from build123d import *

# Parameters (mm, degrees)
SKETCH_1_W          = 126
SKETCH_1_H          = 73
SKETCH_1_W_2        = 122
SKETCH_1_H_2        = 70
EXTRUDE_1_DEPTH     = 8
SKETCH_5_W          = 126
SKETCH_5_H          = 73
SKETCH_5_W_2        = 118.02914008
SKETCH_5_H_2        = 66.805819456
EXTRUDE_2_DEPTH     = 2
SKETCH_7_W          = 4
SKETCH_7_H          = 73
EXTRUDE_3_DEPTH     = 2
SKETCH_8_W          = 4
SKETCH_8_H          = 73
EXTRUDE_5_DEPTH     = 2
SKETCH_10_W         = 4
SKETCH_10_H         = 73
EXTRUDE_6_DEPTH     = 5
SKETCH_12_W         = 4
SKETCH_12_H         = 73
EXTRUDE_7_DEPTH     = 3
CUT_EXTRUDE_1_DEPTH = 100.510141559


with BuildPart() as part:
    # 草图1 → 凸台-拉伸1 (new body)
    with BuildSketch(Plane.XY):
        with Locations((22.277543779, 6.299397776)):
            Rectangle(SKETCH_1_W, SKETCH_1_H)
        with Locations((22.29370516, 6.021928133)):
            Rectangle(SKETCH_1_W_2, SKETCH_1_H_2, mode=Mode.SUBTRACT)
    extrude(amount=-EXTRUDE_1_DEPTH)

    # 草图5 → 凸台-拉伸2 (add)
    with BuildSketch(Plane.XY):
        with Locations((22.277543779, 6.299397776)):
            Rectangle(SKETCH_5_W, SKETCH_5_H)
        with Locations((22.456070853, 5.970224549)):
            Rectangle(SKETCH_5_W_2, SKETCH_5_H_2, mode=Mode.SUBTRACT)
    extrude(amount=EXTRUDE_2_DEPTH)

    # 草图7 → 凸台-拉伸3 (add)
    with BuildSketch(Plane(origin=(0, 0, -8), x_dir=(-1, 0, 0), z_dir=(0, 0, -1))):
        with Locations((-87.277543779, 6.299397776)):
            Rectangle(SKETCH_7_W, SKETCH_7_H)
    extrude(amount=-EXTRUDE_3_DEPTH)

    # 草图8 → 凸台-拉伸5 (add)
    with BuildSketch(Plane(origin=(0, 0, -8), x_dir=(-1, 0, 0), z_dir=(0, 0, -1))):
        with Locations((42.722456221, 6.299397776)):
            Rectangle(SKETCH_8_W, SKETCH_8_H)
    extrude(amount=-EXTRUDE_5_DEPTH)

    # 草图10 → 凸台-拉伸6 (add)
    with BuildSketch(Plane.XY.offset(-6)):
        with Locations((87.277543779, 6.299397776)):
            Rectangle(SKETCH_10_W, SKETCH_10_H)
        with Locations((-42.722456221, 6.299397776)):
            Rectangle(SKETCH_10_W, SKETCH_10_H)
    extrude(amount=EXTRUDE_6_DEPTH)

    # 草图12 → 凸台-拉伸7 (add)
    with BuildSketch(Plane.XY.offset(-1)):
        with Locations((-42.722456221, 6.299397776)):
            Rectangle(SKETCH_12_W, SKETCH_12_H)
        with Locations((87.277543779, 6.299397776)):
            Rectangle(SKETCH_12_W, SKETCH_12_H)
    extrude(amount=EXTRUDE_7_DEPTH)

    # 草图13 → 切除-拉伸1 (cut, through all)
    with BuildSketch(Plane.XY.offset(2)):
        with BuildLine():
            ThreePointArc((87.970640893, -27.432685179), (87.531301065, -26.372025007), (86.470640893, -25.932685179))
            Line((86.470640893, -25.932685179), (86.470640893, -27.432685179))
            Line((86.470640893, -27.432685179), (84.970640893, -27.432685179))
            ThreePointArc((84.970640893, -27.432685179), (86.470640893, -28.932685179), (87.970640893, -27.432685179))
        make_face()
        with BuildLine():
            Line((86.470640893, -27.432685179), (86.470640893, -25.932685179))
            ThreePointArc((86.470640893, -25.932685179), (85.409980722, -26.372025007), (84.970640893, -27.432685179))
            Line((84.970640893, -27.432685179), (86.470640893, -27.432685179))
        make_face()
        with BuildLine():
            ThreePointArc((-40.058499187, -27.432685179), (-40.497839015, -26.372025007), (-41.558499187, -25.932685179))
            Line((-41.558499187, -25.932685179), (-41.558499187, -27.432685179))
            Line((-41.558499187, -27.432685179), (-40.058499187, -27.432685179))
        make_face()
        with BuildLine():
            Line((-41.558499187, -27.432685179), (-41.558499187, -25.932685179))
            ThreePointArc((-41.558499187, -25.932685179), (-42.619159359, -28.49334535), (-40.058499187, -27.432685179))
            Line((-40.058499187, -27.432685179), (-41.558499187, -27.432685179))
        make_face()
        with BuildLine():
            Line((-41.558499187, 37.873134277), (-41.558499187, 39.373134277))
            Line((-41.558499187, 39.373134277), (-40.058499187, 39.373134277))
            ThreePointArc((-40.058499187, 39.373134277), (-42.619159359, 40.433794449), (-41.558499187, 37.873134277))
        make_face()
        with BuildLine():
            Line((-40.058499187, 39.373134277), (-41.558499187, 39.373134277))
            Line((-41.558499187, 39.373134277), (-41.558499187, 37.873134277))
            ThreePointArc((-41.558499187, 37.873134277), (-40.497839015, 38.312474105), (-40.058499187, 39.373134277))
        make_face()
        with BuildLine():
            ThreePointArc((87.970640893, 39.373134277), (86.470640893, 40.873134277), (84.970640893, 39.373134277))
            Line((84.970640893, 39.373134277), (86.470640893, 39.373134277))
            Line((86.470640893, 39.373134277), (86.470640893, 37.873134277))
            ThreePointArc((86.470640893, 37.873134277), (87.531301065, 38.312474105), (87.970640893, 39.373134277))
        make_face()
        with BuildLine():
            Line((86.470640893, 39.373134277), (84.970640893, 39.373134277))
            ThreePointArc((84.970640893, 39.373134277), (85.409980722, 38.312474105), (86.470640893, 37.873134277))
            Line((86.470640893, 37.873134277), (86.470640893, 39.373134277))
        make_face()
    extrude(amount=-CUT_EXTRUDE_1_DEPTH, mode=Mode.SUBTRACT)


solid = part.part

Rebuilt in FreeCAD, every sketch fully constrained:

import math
import FreeCAD as App
import Part
import Sketcher

V = App.Vector


def add_polygon(sketch, points):
    """Adds a closed chain of lines whose ends are joined by coincident constraints."""
    first, n = sketch.GeometryCount, len(points)
    for a, b in zip(points, points[1:] + points[:1]):
        sketch.addGeometry(Part.LineSegment(App.Vector(*a, 0), App.Vector(*b, 0)), False)
    for i in range(n):
        sketch.addConstraint(Sketcher.Constraint("Coincident", first + i, 2, first + (i + 1) % n, 1))

doc = App.newDocument("Part")
body = doc.addObject("PartDesign::Body", "Body")

# Sketch on XY plane
sketch1 = body.newObject("Sketcher::SketchObject", "Sketch")
sketch1.AttachmentSupport = (doc.getObject("XY_Plane"), [""])
sketch1.MapMode = "FlatFace"
add_polygon(sketch1, [(-40.722456, 42.799398), (-40.722456, -30.200602), (85.277544, -30.200602), (85.277544, 42.799398)])  # lines 0-3
add_polygon(sketch1, [(83.293705, -28.978072), (-38.706295, -28.978072), (-38.706295, 41.021928), (83.293705, 41.021928)])  # lines 4-7
sketch1.addConstraint([
    Sketcher.Constraint("Vertical", 0),
    Sketcher.Constraint("Horizontal", 1),
    Sketcher.Constraint("Vertical", 2),
    Sketcher.Constraint("Horizontal", 3),
    Sketcher.Constraint("Horizontal", 4),
    Sketcher.Constraint("Vertical", 5),
    Sketcher.Constraint("Horizontal", 6),
    Sketcher.Constraint("Vertical", 7),
    Sketcher.Constraint("DistanceX", 1, 1, 1, 2, 126.0),
    Sketcher.Constraint("DistanceX", 4, 2, 4, 1, 122.0),
    Sketcher.Constraint("DistanceY", 0, 2, 0, 1, 73.0),
    Sketcher.Constraint("DistanceY", 5, 1, 5, 2, 70.0),
    Sketcher.Constraint("DistanceY", 4, 2, -1, 1, 28.978072),
    Sketcher.Constraint("DistanceX", 0, 2, 4, 2, 2.016161),
    Sketcher.Constraint("DistanceY", 0, 2, 4, 2, 1.22253),
    Sketcher.Constraint("DistanceX", 0, 2, -1, 1, 40.722456),
])
pad1 = body.newObject("PartDesign::Pad", "Pad")
pad1.Profile = sketch1
pad1.Length = 8
pad1.Reversed = True

# Sketch on XY plane
sketch2 = body.newObject("Sketcher::SketchObject", "Sketch001")
sketch2.AttachmentSupport = (doc.getObject("XY_Plane"), [""])
sketch2.MapMode = "FlatFace"
add_polygon(sketch2, [(-40.722456, 42.799398), (-40.722456, -30.200602), (85.277544, -30.200602), (85.277544, 42.799398)])  # lines 0-3
add_polygon(sketch2, [(81.470641, -27.432685), (-36.558499, -27.432685), (-36.558499, 39.373134), (81.470641, 39.373134)])  # lines 4-7
sketch2.addConstraint([
    Sketcher.Constraint("Vertical", 0),
    Sketcher.Constraint("Horizontal", 1),
    Sketcher.Constraint("Vertical", 2),
    Sketcher.Constraint("Horizontal", 3),
    Sketcher.Constraint("Horizontal", 4),
    Sketcher.Constraint("Vertical", 5),
    Sketcher.Constraint("Horizontal", 6),
    Sketcher.Constraint("Vertical", 7),
    Sketcher.Constraint("DistanceX", 1, 1, 1, 2, 126.0),
    Sketcher.Constraint("DistanceY", 0, 2, 0, 1, 73.0),
    Sketcher.Constraint("DistanceX", 4, 2, 4, 1, 118.02914),
    Sketcher.Constraint("DistanceY", 5, 1, 5, 2, 66.805819),
    Sketcher.Constraint("DistanceX", 4, 2, -1, 1, 36.558499),
    Sketcher.Constraint("DistanceX", 0, 2, -1, 1, 40.722456),
    Sketcher.Constraint("DistanceY", 0, 2, -1, 1, 30.200602),
    Sketcher.Constraint("DistanceY", 4, 2, -1, 1, 27.432685),
])
pad2 = body.newObject("PartDesign::Pad", "Pad001")
pad2.Profile = sketch2
pad2.Length = 2

# Sketch on XY plane
sketch3 = body.newObject("Sketcher::SketchObject", "Sketch002")
sketch3.AttachmentSupport = (doc.getObject("XY_Plane"), [""])
sketch3.MapMode = "FlatFace"
sketch3.AttachmentOffset = App.Placement(V(0, 0, -8), App.Rotation())
add_polygon(sketch3, [(89.277544, 42.799398), (89.277544, -30.200602), (85.277544, -30.200602), (85.277544, 42.799398)])  # lines 0-3
sketch3.addConstraint([
    Sketcher.Constraint("Vertical", 0),
    Sketcher.Constraint("Horizontal", 1),
    Sketcher.Constraint("Vertical", 2),
    Sketcher.Constraint("Horizontal", 3),
    Sketcher.Constraint("DistanceX", 1, 2, 1, 1, 4.0),
    Sketcher.Constraint("DistanceY", 0, 2, 0, 1, 73.0),
    Sketcher.Constraint("DistanceX", -1, 1, 0, 2, 89.277544),
    Sketcher.Constraint("DistanceY", 0, 2, -1, 1, 30.200602),
])
pad3 = body.newObject("PartDesign::Pad", "Pad002")
pad3.Profile = sketch3
pad3.Length = 2

# Sketch on XY plane
sketch4 = body.newObject("Sketcher::SketchObject", "Sketch003")
sketch4.AttachmentSupport = (doc.getObject("XY_Plane"), [""])
sketch4.MapMode = "FlatFace"
sketch4.AttachmentOffset = App.Placement(V(0, 0, -8), App.Rotation())
add_polygon(sketch4, [(-40.722456, 42.799398), (-40.722456, -30.200602), (-44.722456, -30.200602), (-44.722456, 42.799398)])  # lines 0-3
sketch4.addConstraint([
    Sketcher.Constraint("Vertical", 0),
    Sketcher.Constraint("Horizontal", 1),
    Sketcher.Constraint("Vertical", 2),
    Sketcher.Constraint("Horizontal", 3),
    Sketcher.Constraint("DistanceX", 1, 2, 1, 1, 4.0),
    Sketcher.Constraint("DistanceY", 0, 2, 0, 1, 73.0),
    Sketcher.Constraint("DistanceX", 0, 2, -1, 1, 40.722456),
    Sketcher.Constraint("DistanceY", 0, 2, -1, 1, 30.200602),
])
pad4 = body.newObject("PartDesign::Pad", "Pad003")
pad4.Profile = sketch4
pad4.Length = 2

# Sketch on XY plane
sketch5 = body.newObject("Sketcher::SketchObject", "Sketch004")
sketch5.AttachmentSupport = (doc.getObject("XY_Plane"), [""])
sketch5.MapMode = "FlatFace"
sketch5.AttachmentOffset = App.Placement(V(0, 0, -6), App.Rotation())
add_polygon(sketch5, [(85.277544, 42.799398), (85.277544, -30.200602), (89.277544, -30.200602), (89.277544, 42.799398)])  # lines 0-3
add_polygon(sketch5, [(-44.722456, 42.799398), (-44.722456, -30.200602), (-40.722456, -30.200602), (-40.722456, 42.799398)])  # lines 4-7
sketch5.addConstraint([
    Sketcher.Constraint("Vertical", 0),
    Sketcher.Constraint("Horizontal", 1),
    Sketcher.Constraint("Vertical", 2),
    Sketcher.Constraint("Horizontal", 3),
    Sketcher.Constraint("Vertical", 4),
    Sketcher.Constraint("Horizontal", 5),
    Sketcher.Constraint("Vertical", 6),
    Sketcher.Constraint("Horizontal", 7),
    Sketcher.Constraint("Horizontal", 1, 2, 4, 2),
    Sketcher.Constraint("Horizontal", 3, 2, 6, 2),
    Sketcher.Constraint("Equal", 3, 5),
    Sketcher.Constraint("DistanceX", 1, 1, 1, 2, 4.0),
    Sketcher.Constraint("DistanceY", 0, 2, 0, 1, 73.0),
    Sketcher.Constraint("DistanceX", 4, 2, 0, 2, 130.0),
    Sketcher.Constraint("DistanceX", -1, 1, 0, 2, 85.277544),
    Sketcher.Constraint("DistanceY", 0, 2, -1, 1, 30.200602),
])
pad5 = body.newObject("PartDesign::Pad", "Pad004")
pad5.Profile = sketch5
pad5.Length = 5

# Sketch on XY plane
sketch6 = body.newObject("Sketcher::SketchObject", "Sketch005")
sketch6.AttachmentSupport = (doc.getObject("XY_Plane"), [""])
sketch6.MapMode = "FlatFace"
sketch6.AttachmentOffset = App.Placement(V(0, 0, -1), App.Rotation())
add_polygon(sketch6, [(-44.722456, 42.799398), (-44.722456, -30.200602), (-40.722456, -30.200602), (-40.722456, 42.799398)])  # lines 0-3
add_polygon(sketch6, [(85.277544, 42.799398), (85.277544, -30.200602), (89.277544, -30.200602), (89.277544, 42.799398)])  # lines 4-7
sketch6.addConstraint([
    Sketcher.Constraint("Vertical", 0),
    Sketcher.Constraint("Horizontal", 1),
    Sketcher.Constraint("Vertical", 2),
    Sketcher.Constraint("Horizontal", 3),
    Sketcher.Constraint("Vertical", 4),
    Sketcher.Constraint("Horizontal", 5),
    Sketcher.Constraint("Vertical", 6),
    Sketcher.Constraint("Horizontal", 7),
    Sketcher.Constraint("Horizontal", 1, 2, 4, 2),
    Sketcher.Constraint("Horizontal", 3, 2, 6, 2),
    Sketcher.Constraint("Equal", 3, 5),
    Sketcher.Constraint("DistanceX", 1, 1, 1, 2, 4.0),
    Sketcher.Constraint("DistanceY", 0, 2, 0, 1, 73.0),
    Sketcher.Constraint("DistanceX", 1, 2, 4, 2, 126.0),
    Sketcher.Constraint("DistanceX", 0, 2, -1, 1, 44.722456),
    Sketcher.Constraint("DistanceY", 0, 2, -1, 1, 30.200602),
])
pad6 = body.newObject("PartDesign::Pad", "Pad005")
pad6.Profile = sketch6
pad6.Length = 3

# Sketch on XY plane
sketch7 = body.newObject("Sketcher::SketchObject", "Sketch006")
sketch7.AttachmentSupport = (doc.getObject("XY_Plane"), [""])
sketch7.MapMode = "FlatFace"
sketch7.AttachmentOffset = App.Placement(V(0, 0, 2), App.Rotation())
sketch7.addGeometry([
    Part.ArcOfCircle(Part.Circle(V(86.470641, -27.432685, 0), V(0, 0, 1), 1.5), math.radians(0), math.radians(90)),  # 0
    Part.ArcOfCircle(Part.Circle(V(86.470641, -27.432685, 0), V(0, 0, 1), 1.5), math.radians(90), math.radians(180)),  # 1
    Part.ArcOfCircle(Part.Circle(V(86.470641, -27.432685, 0), V(0, 0, 1), 1.5), math.radians(180), math.radians(360)),  # 2
    Part.ArcOfCircle(Part.Circle(V(-41.558499, -27.432685, 0), V(0, 0, 1), 1.5), math.radians(0), math.radians(90)),  # 3
    Part.ArcOfCircle(Part.Circle(V(-41.558499, -27.432685, 0), V(0, 0, 1), 1.5), math.radians(90), math.radians(360)),  # 4
    Part.ArcOfCircle(Part.Circle(V(-41.558499, 39.373134, 0), V(0, 0, 1), 1.5), math.radians(0), math.radians(270)),  # 5
    Part.ArcOfCircle(Part.Circle(V(-41.558499, 39.373134, 0), V(0, 0, 1), 1.5), math.radians(-90), math.radians(0)),  # 6
    Part.ArcOfCircle(Part.Circle(V(86.470641, 39.373134, 0), V(0, 0, 1), 1.5), math.radians(0), math.radians(180)),  # 7
    Part.ArcOfCircle(Part.Circle(V(86.470641, 39.373134, 0), V(0, 0, 1), 1.5), math.radians(-180), math.radians(-90)),  # 8
    Part.ArcOfCircle(Part.Circle(V(86.470641, 39.373134, 0), V(0, 0, 1), 1.5), math.radians(-90), math.radians(0)),  # 9
], False)
sketch7.addConstraint([
    Sketcher.Constraint("Tangent", 0, 2, 1, 1),
    Sketcher.Constraint("Tangent", 1, 2, 2, 1),
    Sketcher.Constraint("Tangent", 2, 2, 0, 1),
    Sketcher.Constraint("Tangent", 3, 1, 4, 2),
    Sketcher.Constraint("Coincident", 4, 1, 3, 2),
    Sketcher.Constraint("Tangent", 5, 1, 6, 2),
    Sketcher.Constraint("Coincident", 6, 1, 5, 2),
    Sketcher.Constraint("Tangent", 7, 2, 8, 1),
    Sketcher.Constraint("Tangent", 8, 2, 9, 1),
    Sketcher.Constraint("Tangent", 9, 2, 7, 1),
    Sketcher.Constraint("Equal", 2, 3),
    Sketcher.Constraint("Equal", 4, 5),
    Sketcher.Constraint("Equal", 6, 7),
    Sketcher.Constraint("Horizontal", 2, 3, 3, 3),
    Sketcher.Constraint("Horizontal", 6, 3, 7, 3),
    Sketcher.Constraint("Horizontal", 4, 3, 1, 2),
    Sketcher.Constraint("Horizontal", 1, 2, 2, 2),
    Sketcher.Constraint("Horizontal", 2, 2, 3, 1),
    Sketcher.Constraint("Horizontal", 9, 3, 5, 1),
    Sketcher.Constraint("Horizontal", 5, 1, 7, 2),
    Sketcher.Constraint("Horizontal", 7, 2, 9, 2),
    Sketcher.Constraint("Vertical", 4, 3, 5, 3),
    Sketcher.Constraint("Vertical", 2, 3, 7, 3),
    Sketcher.Constraint("Vertical", 9, 3, 0, 2),
    Sketcher.Constraint("Vertical", 6, 3, 4, 1),
    Sketcher.Constraint("Vertical", 4, 1, 6, 1),
    Sketcher.Constraint("Vertical", 0, 2, 8, 2),
    Sketcher.Constraint("Radius", 0, 1.5),
    Sketcher.Constraint("DistanceX", 3, 3, -1, 1, 41.558499),
    Sketcher.Constraint("DistanceX", -1, 1, 0, 3, 86.470641),
    Sketcher.Constraint("DistanceY", 3, 3, 5, 3, 66.805819),
    Sketcher.Constraint("DistanceY", 0, 3, -1, 1, 27.432685),
])
pocket1 = body.newObject("PartDesign::Pocket", "Pocket")
pocket1.Profile = sketch7
pocket1.Type = "ThroughAll"

doc.recompute()
